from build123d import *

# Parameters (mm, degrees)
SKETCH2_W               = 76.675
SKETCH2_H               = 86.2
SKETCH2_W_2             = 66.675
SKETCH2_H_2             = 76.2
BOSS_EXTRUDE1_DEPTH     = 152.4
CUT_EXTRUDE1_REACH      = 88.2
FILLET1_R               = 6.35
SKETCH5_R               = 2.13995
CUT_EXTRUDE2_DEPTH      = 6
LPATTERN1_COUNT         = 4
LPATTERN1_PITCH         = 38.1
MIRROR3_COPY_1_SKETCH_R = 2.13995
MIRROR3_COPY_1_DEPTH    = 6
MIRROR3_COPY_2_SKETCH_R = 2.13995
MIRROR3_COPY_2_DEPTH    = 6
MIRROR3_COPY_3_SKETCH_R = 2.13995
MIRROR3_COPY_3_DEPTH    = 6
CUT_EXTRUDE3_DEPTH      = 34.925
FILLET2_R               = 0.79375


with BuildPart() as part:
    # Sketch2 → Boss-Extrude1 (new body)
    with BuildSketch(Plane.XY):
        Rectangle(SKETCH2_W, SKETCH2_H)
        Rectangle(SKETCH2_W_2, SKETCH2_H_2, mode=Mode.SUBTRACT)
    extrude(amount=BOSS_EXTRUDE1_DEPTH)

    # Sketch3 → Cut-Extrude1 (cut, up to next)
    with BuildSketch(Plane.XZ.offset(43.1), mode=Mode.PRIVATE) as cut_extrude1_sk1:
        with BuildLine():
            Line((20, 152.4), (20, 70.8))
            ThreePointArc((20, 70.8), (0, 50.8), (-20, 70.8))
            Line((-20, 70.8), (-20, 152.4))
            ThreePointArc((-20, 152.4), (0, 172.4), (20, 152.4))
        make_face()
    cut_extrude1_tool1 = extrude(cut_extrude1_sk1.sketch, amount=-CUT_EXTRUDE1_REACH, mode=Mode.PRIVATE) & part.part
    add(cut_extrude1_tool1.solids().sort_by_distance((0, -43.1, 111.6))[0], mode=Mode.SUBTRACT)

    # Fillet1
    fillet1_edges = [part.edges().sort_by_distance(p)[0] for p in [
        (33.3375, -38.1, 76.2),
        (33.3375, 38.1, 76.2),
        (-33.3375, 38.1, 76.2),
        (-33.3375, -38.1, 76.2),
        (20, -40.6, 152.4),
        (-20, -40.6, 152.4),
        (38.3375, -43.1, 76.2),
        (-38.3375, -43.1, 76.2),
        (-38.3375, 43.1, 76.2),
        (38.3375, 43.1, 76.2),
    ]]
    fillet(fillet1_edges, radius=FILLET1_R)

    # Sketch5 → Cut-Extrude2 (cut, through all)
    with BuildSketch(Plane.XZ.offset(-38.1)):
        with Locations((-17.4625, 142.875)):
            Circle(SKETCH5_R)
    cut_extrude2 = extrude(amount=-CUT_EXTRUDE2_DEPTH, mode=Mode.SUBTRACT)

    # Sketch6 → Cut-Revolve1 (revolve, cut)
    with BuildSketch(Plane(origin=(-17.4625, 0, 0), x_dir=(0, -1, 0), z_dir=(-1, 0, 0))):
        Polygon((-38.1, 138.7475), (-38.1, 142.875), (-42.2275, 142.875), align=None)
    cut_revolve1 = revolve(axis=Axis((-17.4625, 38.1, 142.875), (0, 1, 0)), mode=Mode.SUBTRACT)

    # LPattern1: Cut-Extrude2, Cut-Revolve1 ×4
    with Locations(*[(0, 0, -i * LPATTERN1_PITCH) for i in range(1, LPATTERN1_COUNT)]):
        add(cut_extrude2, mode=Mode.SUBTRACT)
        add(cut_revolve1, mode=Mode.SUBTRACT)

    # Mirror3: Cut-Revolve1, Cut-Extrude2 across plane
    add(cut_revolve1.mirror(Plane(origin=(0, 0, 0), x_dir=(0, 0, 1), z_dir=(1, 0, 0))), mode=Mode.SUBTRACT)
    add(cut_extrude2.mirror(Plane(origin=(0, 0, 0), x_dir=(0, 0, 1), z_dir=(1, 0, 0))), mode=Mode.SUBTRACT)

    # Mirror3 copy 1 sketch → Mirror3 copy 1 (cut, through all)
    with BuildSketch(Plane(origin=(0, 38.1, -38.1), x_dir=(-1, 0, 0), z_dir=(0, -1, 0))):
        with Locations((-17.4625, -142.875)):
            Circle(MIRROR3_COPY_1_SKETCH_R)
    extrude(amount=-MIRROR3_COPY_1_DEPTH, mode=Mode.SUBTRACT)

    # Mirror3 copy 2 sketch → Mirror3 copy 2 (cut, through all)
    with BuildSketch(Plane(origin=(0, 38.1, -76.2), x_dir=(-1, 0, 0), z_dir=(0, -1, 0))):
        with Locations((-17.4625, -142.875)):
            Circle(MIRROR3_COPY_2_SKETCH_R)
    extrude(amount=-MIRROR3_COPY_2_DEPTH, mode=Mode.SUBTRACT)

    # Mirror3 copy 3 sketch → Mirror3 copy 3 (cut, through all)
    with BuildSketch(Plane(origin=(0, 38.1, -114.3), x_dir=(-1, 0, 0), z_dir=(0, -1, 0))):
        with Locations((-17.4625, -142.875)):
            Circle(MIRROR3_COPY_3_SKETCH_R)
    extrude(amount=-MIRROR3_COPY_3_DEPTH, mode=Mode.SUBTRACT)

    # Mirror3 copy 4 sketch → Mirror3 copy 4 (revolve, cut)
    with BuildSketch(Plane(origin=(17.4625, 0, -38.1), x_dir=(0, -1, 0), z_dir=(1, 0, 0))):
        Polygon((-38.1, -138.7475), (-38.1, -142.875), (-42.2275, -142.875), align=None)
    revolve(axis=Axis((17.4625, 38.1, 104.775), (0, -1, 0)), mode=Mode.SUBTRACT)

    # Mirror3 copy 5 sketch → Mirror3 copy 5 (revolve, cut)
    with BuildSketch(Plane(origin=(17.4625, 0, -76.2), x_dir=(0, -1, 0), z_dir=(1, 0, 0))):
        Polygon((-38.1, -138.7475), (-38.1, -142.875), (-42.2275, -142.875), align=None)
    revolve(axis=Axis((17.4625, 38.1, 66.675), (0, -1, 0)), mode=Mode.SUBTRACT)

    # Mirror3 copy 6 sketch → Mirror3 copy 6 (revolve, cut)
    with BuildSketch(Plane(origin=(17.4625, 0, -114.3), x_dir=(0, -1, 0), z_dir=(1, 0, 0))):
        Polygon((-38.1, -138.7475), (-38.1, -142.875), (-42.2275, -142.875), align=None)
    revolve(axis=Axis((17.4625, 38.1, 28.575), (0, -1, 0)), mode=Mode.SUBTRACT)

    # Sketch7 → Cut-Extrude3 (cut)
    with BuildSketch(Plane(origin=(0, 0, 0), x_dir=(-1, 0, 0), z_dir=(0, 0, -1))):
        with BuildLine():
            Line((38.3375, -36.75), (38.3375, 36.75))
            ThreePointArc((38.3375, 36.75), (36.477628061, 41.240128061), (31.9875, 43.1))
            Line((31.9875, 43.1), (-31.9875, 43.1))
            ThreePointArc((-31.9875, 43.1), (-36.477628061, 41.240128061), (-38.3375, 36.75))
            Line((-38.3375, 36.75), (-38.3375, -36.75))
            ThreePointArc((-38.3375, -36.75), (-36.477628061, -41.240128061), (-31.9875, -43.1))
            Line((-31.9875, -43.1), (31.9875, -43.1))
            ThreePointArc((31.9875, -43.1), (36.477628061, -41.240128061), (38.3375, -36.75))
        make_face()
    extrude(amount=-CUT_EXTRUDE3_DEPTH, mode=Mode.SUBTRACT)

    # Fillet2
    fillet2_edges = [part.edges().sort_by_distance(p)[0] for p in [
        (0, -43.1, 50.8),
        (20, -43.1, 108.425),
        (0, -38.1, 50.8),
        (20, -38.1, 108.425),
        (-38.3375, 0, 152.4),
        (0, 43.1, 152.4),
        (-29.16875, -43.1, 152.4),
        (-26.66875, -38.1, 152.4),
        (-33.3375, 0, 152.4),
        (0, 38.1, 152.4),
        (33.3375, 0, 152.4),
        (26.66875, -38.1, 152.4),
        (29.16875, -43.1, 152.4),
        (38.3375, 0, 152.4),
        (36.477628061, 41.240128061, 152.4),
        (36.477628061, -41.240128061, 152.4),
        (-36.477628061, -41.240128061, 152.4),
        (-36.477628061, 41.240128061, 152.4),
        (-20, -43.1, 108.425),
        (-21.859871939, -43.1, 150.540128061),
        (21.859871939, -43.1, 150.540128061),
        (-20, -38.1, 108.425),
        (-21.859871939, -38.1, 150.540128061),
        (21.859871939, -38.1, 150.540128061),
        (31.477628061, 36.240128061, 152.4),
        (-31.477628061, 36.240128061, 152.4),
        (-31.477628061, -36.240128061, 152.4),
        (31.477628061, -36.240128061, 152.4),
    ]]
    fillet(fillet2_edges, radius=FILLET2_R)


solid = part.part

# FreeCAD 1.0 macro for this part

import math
import FreeCAD as App
import Part
import Sketcher
from FreeCAD import Vector
Q = App.Units.Quantity


def edges_at(feature, points):
    """Names of the edges that pass closest to the given points."""
    edges = feature.Shape.Edges
    near = lambda p: min(range(len(edges)), key=lambda i: edges[i].distToShape(Part.Vertex(*p))[0])
    return sorted({f"Edge{near(p) + 1}" for p in points})

doc = App.newDocument("Part")
body = doc.addObject("PartDesign::Body", "Body")

sketch1 = body.newObject("Sketcher::SketchObject", "Sketch")
sketch1.AttachmentSupport = (doc.getObject("XY_Plane"), [""])
sketch1.MapMode = "FlatFace"
sketch1.addGeometry([
    Part.LineSegment(Vector(-38, 43, 0), Vector(-38, -43, 0)),
    Part.LineSegment(Vector(-38, -43, 0), Vector(38, -43, 0)),
    Part.LineSegment(Vector(38, -43, 0), Vector(38, 43, 0)),
    Part.LineSegment(Vector(38, 43, 0), Vector(-38, 43, 0)),
    Part.LineSegment(Vector(33, -38, 0), Vector(-33, -38, 0)),
    Part.LineSegment(Vector(-33, -38, 0), Vector(-33, 38, 0)),
    Part.LineSegment(Vector(-33, 38, 0), Vector(33, 38, 0)),
    Part.LineSegment(Vector(33, 38, 0), Vector(33, -38, 0)),
], False)
sketch1.addConstraint([
    Sketcher.Constraint("Coincident", 0, 2, 1, 1),
    Sketcher.Constraint("Coincident", 1, 2, 2, 1),
    Sketcher.Constraint("Coincident", 2, 2, 3, 1),
    Sketcher.Constraint("Coincident", 3, 2, 0, 1),
    Sketcher.Constraint("Coincident", 4, 2, 5, 1),
    Sketcher.Constraint("Coincident", 5, 2, 6, 1),
    Sketcher.Constraint("Coincident", 6, 2, 7, 1),
    Sketcher.Constraint("Coincident", 7, 2, 4, 1),
    Sketcher.Constraint("Vertical", 0),
    Sketcher.Constraint("Horizontal", 1),
    Sketcher.Constraint("Vertical", 2),
    Sketcher.Constraint("Horizontal", 3),
    Sketcher.Constraint("Horizontal", 4),
    Sketcher.Constraint("Vertical", 5),
    Sketcher.Constraint("Horizontal", 6),
    Sketcher.Constraint("Vertical", 7),
    Sketcher.Constraint("Symmetric", 0, 2, 2, 2, -1, 1),
    Sketcher.Constraint("Symmetric", 4, 2, 6, 2, -1, 1),
    Sketcher.Constraint("DistanceY", 5, 1, 5, 2, Q("3 in")),
    Sketcher.Constraint("DistanceX", 4, 2, 4, 1, Q("2.625 in")),
    Sketcher.Constraint("DistanceX", 1, 1, 1, 2, Q("76.675 mm")),
    Sketcher.Constraint("DistanceY", 0, 2, 0, 1, Q("86.2 mm")),
])
pad1 = body.newObject("PartDesign::Pad", "Pad")
pad1.Profile = sketch1
pad1.Length = Q("6 in")

sketch2 = body.newObject("Sketcher::SketchObject", "Sketch001")
sketch2.AttachmentSupport = (doc.getObject("XZ_Plane"), [""])
sketch2.MapMode = "FlatFace"
sketch2.AttachmentOffset = App.Placement(Vector(0, 0, 43.1), App.Rotation())
sketch2.addGeometry([
    Part.LineSegment(Vector(20, 71, 0), Vector(20, 152, 0)),
    Part.ArcOfCircle(Part.Circle(Vector(0, 152, 0), Vector(0, 0, 1), 20), math.radians(0), math.radians(180)),
    Part.LineSegment(Vector(-20, 152, 0), Vector(-20, 71, 0)),
    Part.ArcOfCircle(Part.Circle(Vector(0, 71, 0), Vector(0, 0, 1), 20), math.radians(180), math.radians(360)),
], False)
sketch2.addConstraint([
    Sketcher.Constraint("Tangent", 0, 2, 1, 1),
    Sketcher.Constraint("Tangent", 1, 2, 2, 1),
    Sketcher.Constraint("Tangent", 2, 2, 3, 1),
    Sketcher.Constraint("Tangent", 3, 2, 0, 1),
    Sketcher.Constraint("Vertical", 0),
    Sketcher.Constraint("Vertical", 2),
    Sketcher.Constraint("PointOnObject", 1, 3, -2),
    Sketcher.Constraint("DistanceY", -1, 1, 1, 3, Q("6 in")),
    Sketcher.Constraint("Radius", 1, Q("20 mm")),
    Sketcher.Constraint("DistanceY", 0, 1, 0, 2, Q("81.6 mm")),
])
pocket1 = body.newObject("PartDesign::Pocket", "Pocket")
pocket1.Profile = sketch2
pocket1.Type = "UpToFirst"
doc.recompute()

fillet = body.newObject("PartDesign::Fillet", "Fillet")
fillet.Base = (pocket1, edges_at(pocket1, [
    (33.337, -38.1, 76.2),
    (33.337, 38.1, 76.2),
    (-33.337, 38.1, 76.2),
    (-33.337, -38.1, 76.2),
    (20, -40.6, 152.4),
    (-20, -40.6, 152.4),
    (38.337, -43.1, 76.2),
    (-38.337, -43.1, 76.2),
    (-38.337, 43.1, 76.2),
    (38.337, 43.1, 76.2),
]))
fillet.Radius = Q("0.25 in")

sketch3 = body.newObject("Sketcher::SketchObject", "Sketch002")
sketch3.AttachmentSupport = (doc.getObject("XZ_Plane"), [""])
sketch3.MapMode = "FlatFace"
sketch3.AttachmentOffset = App.Placement(Vector(0, 0, -1.5 * 25.4), App.Rotation())
sketch3.addGeometry(Part.Circle(Vector(-17.5, 142.9, 0), Vector(0, 0, 1), 2.1), False)
sketch3.addConstraint([
    Sketcher.Constraint("Diameter", 0, Q("0.1685 in")),
    Sketcher.Constraint("DistanceX", 0, 3, -1, 1, Q("0.6875 in")),
    Sketcher.Constraint("DistanceY", -1, 1, 0, 3, Q("5.625 in")),
])
pocket2 = body.newObject("PartDesign::Pocket", "Pocket001")
pocket2.Profile = sketch3
pocket2.Type = "ThroughAll"

sketch4 = body.newObject("Sketcher::SketchObject", "Sketch003")
sketch4.AttachmentSupport = (doc.getObject("YZ_Plane"), [""])
sketch4.MapMode = "FlatFace"
sketch4.AttachmentOffset = App.Placement(Vector(0, 0, -0.6875 * 25.4), App.Rotation())
sketch4.addGeometry([
    Part.LineSegment(Vector(38.1, 138.7, 0), Vector(38.1, 142.9, 0)),
    Part.LineSegment(Vector(38.1, 142.9, 0), Vector(42.2, 142.9, 0)),
    Part.LineSegment(Vector(42.2, 142.9, 0), Vector(38.1, 138.7, 0)),
], False)
sketch4.addGeometry(Part.LineSegment(Vector(38.1, 142.9, 0), Vector(42.2, 142.9, 0)), True)
sketch4.addConstraint([
    Sketcher.Constraint("Coincident", 0, 2, 1, 1),
    Sketcher.Constraint("Coincident", 1, 2, 2, 1),
    Sketcher.Constraint("Coincident", 2, 2, 0, 1),
    Sketcher.Constraint("Vertical", 0),
    Sketcher.Constraint("Horizontal", 1),
    Sketcher.Constraint("Horizontal", 3),
    Sketcher.Constraint("Coincident", 3, 1, 0, 2),
    Sketcher.Constraint("Equal", 1, 3),
    Sketcher.Constraint("Equal", 3, 0),
    Sketcher.Constraint("DistanceX", -1, 1, 0, 2, Q("1.5 in")),
    Sketcher.Constraint("DistanceX", 1, 1, 1, 2, Q("0.1625 in")),
    Sketcher.Constraint("DistanceY", -1, 1, 0, 2, Q("5.625 in")),
])
groove = body.newObject("PartDesign::Groove", "Groove")
groove.Profile = sketch4
groove.ReferenceAxis = (sketch4, ["Axis0"])
groove.Angle = 360
doc.recompute()

linearpattern = body.newObject("PartDesign::LinearPattern", "LinearPattern")
linearpattern.Originals = [pocket2, groove]
linearpattern.Direction = (doc.getObject("Z_Axis"), [""])
linearpattern.Mode = "offset"
linearpattern.Offset = Q("1.5 in")
linearpattern.Occurrences = 4
linearpattern.Reversed = True
body.Tip = linearpattern
doc.recompute()

mirrored = body.newObject("PartDesign::Mirrored", "Mirrored")
mirrored.Originals = [groove, pocket2]
mirrored.MirrorPlane = (doc.getObject("YZ_Plane"), [""])
body.Tip = mirrored

sketch5 = body.newObject("Sketcher::SketchObject", "Sketch004")
sketch5.AttachmentSupport = (doc.getObject("XZ_Plane"), [""])
sketch5.MapMode = "FlatFace"
sketch5.AttachmentOffset = App.Placement(Vector(0, 0, -1.5 * 25.4), App.Rotation())
sketch5.addGeometry(Part.Circle(Vector(17.5, 104.8, 0), Vector(0, 0, 1), 2.1), False)
sketch5.addConstraint([
    Sketcher.Constraint("Diameter", 0, Q("0.1685 in")),
    Sketcher.Constraint("DistanceX", -1, 1, 0, 3, Q("0.6875 in")),
    Sketcher.Constraint("DistanceY", -1, 1, 0, 3, Q("4.125 in")),
])
pocket3 = body.newObject("PartDesign::Pocket", "Pocket002")
pocket3.Profile = sketch5
pocket3.Type = "ThroughAll"

sketch6 = body.newObject("Sketcher::SketchObject", "Sketch005")
sketch6.AttachmentSupport = (doc.getObject("XZ_Plane"), [""])
sketch6.MapMode = "FlatFace"
sketch6.AttachmentOffset = App.Placement(Vector(0, 0, -1.5 * 25.4), App.Rotation())
sketch6.addGeometry(Part.Circle(Vector(17.5, 66.7, 0), Vector(0, 0, 1), 2.1), False)
sketch6.addConstraint([
    Sketcher.Constraint("Diameter", 0, Q("0.1685 in")),
    Sketcher.Constraint("DistanceX", -1, 1, 0, 3, Q("0.6875 in")),
    Sketcher.Constraint("DistanceY", -1, 1, 0, 3, Q("2.625 in")),
])
pocket4 = body.newObject("PartDesign::Pocket", "Pocket003")
pocket4.Profile = sketch6
pocket4.Type = "ThroughAll"

sketch7 = body.newObject("Sketcher::SketchObject", "Sketch006")
sketch7.AttachmentSupport = (doc.getObject("XZ_Plane"), [""])
sketch7.MapMode = "FlatFace"
sketch7.AttachmentOffset = App.Placement(Vector(0, 0, -1.5 * 25.4), App.Rotation())
sketch7.addGeometry(Part.Circle(Vector(17.5, 28.6, 0), Vector(0, 0, 1), 2.1), False)
sketch7.addConstraint([
    Sketcher.Constraint("Diameter", 0, Q("0.1685 in")),
    Sketcher.Constraint("DistanceX", -1, 1, 0, 3, Q("0.6875 in")),
    Sketcher.Constraint("DistanceY", -1, 1, 0, 3, Q("1.125 in")),
])
pocket5 = body.newObject("PartDesign::Pocket", "Pocket004")
pocket5.Profile = sketch7
pocket5.Type = "ThroughAll"

sketch8 = body.newObject("Sketcher::SketchObject", "Sketch007")
sketch8.AttachmentSupport = (doc.getObject("YZ_Plane"), [""])
sketch8.MapMode = "FlatFace"
sketch8.AttachmentOffset = App.Placement(Vector(0, 0, 0.6875 * 25.4), App.Rotation())
sketch8.addGeometry([
    Part.LineSegment(Vector(38.1, 104.8, 0), Vector(38.1, 100.6, 0)),
    Part.LineSegment(Vector(38.1, 100.6, 0), Vector(42.2, 104.8, 0)),
    Part.LineSegment(Vector(42.2, 104.8, 0), Vector(38.1, 104.8, 0)),
], False)
sketch8.addGeometry(Part.LineSegment(Vector(42.2, 104.8, 0), Vector(38.1, 104.8, 0)), True)
sketch8.addConstraint([
    Sketcher.Constraint("Coincident", 0, 2, 1, 1),
    Sketcher.Constraint("Coincident", 1, 2, 2, 1),
    Sketcher.Constraint("Coincident", 2, 2, 0, 1),
    Sketcher.Constraint("Vertical", 0),
    Sketcher.Constraint("Horizontal", 2),
    Sketcher.Constraint("Horizontal", 3),
    Sketcher.Constraint("Coincident", 3, 1, 1, 2),
    Sketcher.Constraint("Vertical", 0, 2, 3, 2),
    Sketcher.Constraint("Equal", 3, 0),
    Sketcher.Constraint("DistanceX", -1, 1, 0, 2, Q("1.5 in")),
    Sketcher.Constraint("DistanceX", 2, 2, 2, 1, Q("0.1625 in")),
    Sketcher.Constraint("DistanceY", -1, 1, 1, 2, Q("4.125 in")),
])
groove2 = body.newObject("PartDesign::Groove", "Groove001")
groove2.Profile = sketch8
groove2.ReferenceAxis = (sketch8, ["Axis0"])
groove2.Angle = 360

sketch9 = body.newObject("Sketcher::SketchObject", "Sketch008")
sketch9.AttachmentSupport = (doc.getObject("YZ_Plane"), [""])
sketch9.MapMode = "FlatFace"
sketch9.AttachmentOffset = App.Placement(Vector(0, 0, 0.6875 * 25.4), App.Rotation())
sketch9.addGeometry([
    Part.LineSegment(Vector(38.1, 66.7, 0), Vector(38.1, 62.5, 0)),
    Part.LineSegment(Vector(38.1, 62.5, 0), Vector(42.2, 66.7, 0)),
    Part.LineSegment(Vector(42.2, 66.7, 0), Vector(38.1, 66.7, 0)),
], False)
sketch9.addGeometry(Part.LineSegment(Vector(42.2, 66.7, 0), Vector(38.1, 66.7, 0)), True)
sketch9.addConstraint([
    Sketcher.Constraint("Coincident", 0, 2, 1, 1),
    Sketcher.Constraint("Coincident", 1, 2, 2, 1),
    Sketcher.Constraint("Coincident", 2, 2, 0, 1),
    Sketcher.Constraint("Vertical", 0),
    Sketcher.Constraint("Horizontal", 2),
    Sketcher.Constraint("Horizontal", 3),
    Sketcher.Constraint("Coincident", 3, 1, 1, 2),
    Sketcher.Constraint("Vertical", 0, 2, 3, 2),
    Sketcher.Constraint("Equal", 3, 0),
    Sketcher.Constraint("DistanceX", -1, 1, 0, 2, Q("1.5 in")),
    Sketcher.Constraint("DistanceX", 2, 2, 2, 1, Q("0.1625 in")),
    Sketcher.Constraint("DistanceY", -1, 1, 1, 2, Q("2.625 in")),
])
groove3 = body.newObject("PartDesign::Groove", "Groove002")
groove3.Profile = sketch9
groove3.ReferenceAxis = (sketch9, ["Axis0"])
groove3.Angle = 360

sketch10 = body.newObject("Sketcher::SketchObject", "Sketch009")
sketch10.AttachmentSupport = (doc.getObject("YZ_Plane"), [""])
sketch10.MapMode = "FlatFace"
sketch10.AttachmentOffset = App.Placement(Vector(0, 0, 0.6875 * 25.4), App.Rotation())
sketch10.addGeometry([
    Part.LineSegment(Vector(38.1, 28.6, 0), Vector(38.1, 24.4, 0)),
    Part.LineSegment(Vector(38.1, 24.4, 0), Vector(42.2, 28.6, 0)),
    Part.LineSegment(Vector(42.2, 28.6, 0), Vector(38.1, 28.6, 0)),
], False)
sketch10.addGeometry(Part.LineSegment(Vector(42.2, 28.6, 0), Vector(38.1, 28.6, 0)), True)
sketch10.addConstraint([
    Sketcher.Constraint("Coincident", 0, 2, 1, 1),
    Sketcher.Constraint("Coincident", 1, 2, 2, 1),
    Sketcher.Constraint("Coincident", 2, 2, 0, 1),
    Sketcher.Constraint("Vertical", 0),
    Sketcher.Constraint("Horizontal", 2),
    Sketcher.Constraint("Horizontal", 3),
    Sketcher.Constraint("Coincident", 3, 1, 1, 2),
    Sketcher.Constraint("Vertical", 0, 2, 3, 2),
    Sketcher.Constraint("Equal", 3, 0),
    Sketcher.Constraint("DistanceX", -1, 1, 0, 2, Q("1.5 in")),
    Sketcher.Constraint("DistanceX", 2, 2, 2, 1, Q("0.1625 in")),
    Sketcher.Constraint("DistanceY", -1, 1, 1, 2, Q("1.125 in")),
])
groove4 = body.newObject("PartDesign::Groove", "Groove003")
groove4.Profile = sketch10
groove4.ReferenceAxis = (sketch10, ["Axis0"])
groove4.Angle = 360

sketch11 = body.newObject("Sketcher::SketchObject", "Sketch010")
sketch11.AttachmentSupport = (doc.getObject("XY_Plane"), [""])
sketch11.MapMode = "FlatFace"
sketch11.addGeometry([
    Part.LineSegment(Vector(-38, -37, 0), Vector(-38, 37, 0)),
    Part.ArcOfCircle(Part.Circle(Vector(-32, 37, 0), Vector(0, 0, 1), 6), math.radians(90), math.radians(180)),
    Part.LineSegment(Vector(-32, 43, 0), Vector(32, 43, 0)),
    Part.ArcOfCircle(Part.Circle(Vector(32, 37, 0), Vector(0, 0, 1), 6), math.radians(0), math.radians(90)),
    Part.LineSegment(Vector(38, 37, 0), Vector(38, -37, 0)),
    Part.ArcOfCircle(Part.Circle(Vector(32, -37, 0), Vector(0, 0, 1), 6), math.radians(-90), math.radians(0)),
    Part.LineSegment(Vector(32, -43, 0), Vector(-32, -43, 0)),
    Part.ArcOfCircle(Part.Circle(Vector(-32, -37, 0), Vector(0, 0, 1), 6), math.radians(180), math.radians(270)),
], False)
sketch11.addConstraint([
    Sketcher.Constraint("Tangent", 0, 2, 1, 2),
    Sketcher.Constraint("Tangent", 1, 1, 2, 1),
    Sketcher.Constraint("Tangent", 2, 2, 3, 2),
    Sketcher.Constraint("Tangent", 3, 1, 4, 1),
    Sketcher.Constraint("Tangent", 4, 2, 5, 2),
    Sketcher.Constraint("Tangent", 5, 1, 6, 1),
    Sketcher.Constraint("Tangent", 6, 2, 7, 2),
    Sketcher.Constraint("Tangent", 7, 1, 0, 1),
    Sketcher.Constraint("Vertical", 0),
    Sketcher.Constraint("Horizontal", 2),
    Sketcher.Constraint("Vertical", 4),
    Sketcher.Constraint("Horizontal", 6),
    Sketcher.Constraint("Equal", 1, 3),
    Sketcher.Constraint("Equal", 3, 5),
    Sketcher.Constraint("Equal", 5, 7),
    Sketcher.Constraint("Symmetric", 1, 3, 5, 3, -1, 1),
    Sketcher.Constraint("Radius", 1, Q("0.25 in")),
    Sketcher.Constraint("DistanceX", 2, 1, 2, 2, Q("63.975 mm")),
    Sketcher.Constraint("DistanceY", 0, 1, 0, 2, Q("73.5 mm")),
])
pocket6 = body.newObject("PartDesign::Pocket", "Pocket005")
pocket6.Profile = sketch11
pocket6.Length = Q("1.375 in")
pocket6.Reversed = True
doc.recompute()

fillet2 = body.newObject("PartDesign::Fillet", "Fillet001")
fillet2.Base = (pocket6, edges_at(pocket6, [
    (0, -43.1, 50.8),
    (20, -43.1, 108.425),
    (0, -38.1, 50.8),
    (20, -38.1, 108.425),
    (-38.337, 0, 152.4),
    (0, 43.1, 152.4),
    (-29.169, -43.1, 152.4),
    (-26.669, -38.1, 152.4),
    (-33.337, 0, 152.4),
    (0, 38.1, 152.4),
    (33.337, 0, 152.4),
    (26.669, -38.1, 152.4),
    (29.169, -43.1, 152.4),
    (38.337, 0, 152.4),
    (36.478, 41.24, 152.4),
    (36.478, -41.24, 152.4),
    (-36.478, -41.24, 152.4),
    (-36.478, 41.24, 152.4),
    (-20, -43.1, 108.425),
    (-21.86, -43.1, 150.54),
    (21.86, -43.1, 150.54),
    (-20, -38.1, 108.425),
    (-21.86, -38.1, 150.54),
    (21.86, -38.1, 150.54),
    (31.478, 36.24, 152.4),
    (-31.478, 36.24, 152.4),
    (-31.478, -36.24, 152.4),
    (31.478, -36.24, 152.4),
]))
fillet2.Radius = Q("0.03125 in")

doc.recompute()
